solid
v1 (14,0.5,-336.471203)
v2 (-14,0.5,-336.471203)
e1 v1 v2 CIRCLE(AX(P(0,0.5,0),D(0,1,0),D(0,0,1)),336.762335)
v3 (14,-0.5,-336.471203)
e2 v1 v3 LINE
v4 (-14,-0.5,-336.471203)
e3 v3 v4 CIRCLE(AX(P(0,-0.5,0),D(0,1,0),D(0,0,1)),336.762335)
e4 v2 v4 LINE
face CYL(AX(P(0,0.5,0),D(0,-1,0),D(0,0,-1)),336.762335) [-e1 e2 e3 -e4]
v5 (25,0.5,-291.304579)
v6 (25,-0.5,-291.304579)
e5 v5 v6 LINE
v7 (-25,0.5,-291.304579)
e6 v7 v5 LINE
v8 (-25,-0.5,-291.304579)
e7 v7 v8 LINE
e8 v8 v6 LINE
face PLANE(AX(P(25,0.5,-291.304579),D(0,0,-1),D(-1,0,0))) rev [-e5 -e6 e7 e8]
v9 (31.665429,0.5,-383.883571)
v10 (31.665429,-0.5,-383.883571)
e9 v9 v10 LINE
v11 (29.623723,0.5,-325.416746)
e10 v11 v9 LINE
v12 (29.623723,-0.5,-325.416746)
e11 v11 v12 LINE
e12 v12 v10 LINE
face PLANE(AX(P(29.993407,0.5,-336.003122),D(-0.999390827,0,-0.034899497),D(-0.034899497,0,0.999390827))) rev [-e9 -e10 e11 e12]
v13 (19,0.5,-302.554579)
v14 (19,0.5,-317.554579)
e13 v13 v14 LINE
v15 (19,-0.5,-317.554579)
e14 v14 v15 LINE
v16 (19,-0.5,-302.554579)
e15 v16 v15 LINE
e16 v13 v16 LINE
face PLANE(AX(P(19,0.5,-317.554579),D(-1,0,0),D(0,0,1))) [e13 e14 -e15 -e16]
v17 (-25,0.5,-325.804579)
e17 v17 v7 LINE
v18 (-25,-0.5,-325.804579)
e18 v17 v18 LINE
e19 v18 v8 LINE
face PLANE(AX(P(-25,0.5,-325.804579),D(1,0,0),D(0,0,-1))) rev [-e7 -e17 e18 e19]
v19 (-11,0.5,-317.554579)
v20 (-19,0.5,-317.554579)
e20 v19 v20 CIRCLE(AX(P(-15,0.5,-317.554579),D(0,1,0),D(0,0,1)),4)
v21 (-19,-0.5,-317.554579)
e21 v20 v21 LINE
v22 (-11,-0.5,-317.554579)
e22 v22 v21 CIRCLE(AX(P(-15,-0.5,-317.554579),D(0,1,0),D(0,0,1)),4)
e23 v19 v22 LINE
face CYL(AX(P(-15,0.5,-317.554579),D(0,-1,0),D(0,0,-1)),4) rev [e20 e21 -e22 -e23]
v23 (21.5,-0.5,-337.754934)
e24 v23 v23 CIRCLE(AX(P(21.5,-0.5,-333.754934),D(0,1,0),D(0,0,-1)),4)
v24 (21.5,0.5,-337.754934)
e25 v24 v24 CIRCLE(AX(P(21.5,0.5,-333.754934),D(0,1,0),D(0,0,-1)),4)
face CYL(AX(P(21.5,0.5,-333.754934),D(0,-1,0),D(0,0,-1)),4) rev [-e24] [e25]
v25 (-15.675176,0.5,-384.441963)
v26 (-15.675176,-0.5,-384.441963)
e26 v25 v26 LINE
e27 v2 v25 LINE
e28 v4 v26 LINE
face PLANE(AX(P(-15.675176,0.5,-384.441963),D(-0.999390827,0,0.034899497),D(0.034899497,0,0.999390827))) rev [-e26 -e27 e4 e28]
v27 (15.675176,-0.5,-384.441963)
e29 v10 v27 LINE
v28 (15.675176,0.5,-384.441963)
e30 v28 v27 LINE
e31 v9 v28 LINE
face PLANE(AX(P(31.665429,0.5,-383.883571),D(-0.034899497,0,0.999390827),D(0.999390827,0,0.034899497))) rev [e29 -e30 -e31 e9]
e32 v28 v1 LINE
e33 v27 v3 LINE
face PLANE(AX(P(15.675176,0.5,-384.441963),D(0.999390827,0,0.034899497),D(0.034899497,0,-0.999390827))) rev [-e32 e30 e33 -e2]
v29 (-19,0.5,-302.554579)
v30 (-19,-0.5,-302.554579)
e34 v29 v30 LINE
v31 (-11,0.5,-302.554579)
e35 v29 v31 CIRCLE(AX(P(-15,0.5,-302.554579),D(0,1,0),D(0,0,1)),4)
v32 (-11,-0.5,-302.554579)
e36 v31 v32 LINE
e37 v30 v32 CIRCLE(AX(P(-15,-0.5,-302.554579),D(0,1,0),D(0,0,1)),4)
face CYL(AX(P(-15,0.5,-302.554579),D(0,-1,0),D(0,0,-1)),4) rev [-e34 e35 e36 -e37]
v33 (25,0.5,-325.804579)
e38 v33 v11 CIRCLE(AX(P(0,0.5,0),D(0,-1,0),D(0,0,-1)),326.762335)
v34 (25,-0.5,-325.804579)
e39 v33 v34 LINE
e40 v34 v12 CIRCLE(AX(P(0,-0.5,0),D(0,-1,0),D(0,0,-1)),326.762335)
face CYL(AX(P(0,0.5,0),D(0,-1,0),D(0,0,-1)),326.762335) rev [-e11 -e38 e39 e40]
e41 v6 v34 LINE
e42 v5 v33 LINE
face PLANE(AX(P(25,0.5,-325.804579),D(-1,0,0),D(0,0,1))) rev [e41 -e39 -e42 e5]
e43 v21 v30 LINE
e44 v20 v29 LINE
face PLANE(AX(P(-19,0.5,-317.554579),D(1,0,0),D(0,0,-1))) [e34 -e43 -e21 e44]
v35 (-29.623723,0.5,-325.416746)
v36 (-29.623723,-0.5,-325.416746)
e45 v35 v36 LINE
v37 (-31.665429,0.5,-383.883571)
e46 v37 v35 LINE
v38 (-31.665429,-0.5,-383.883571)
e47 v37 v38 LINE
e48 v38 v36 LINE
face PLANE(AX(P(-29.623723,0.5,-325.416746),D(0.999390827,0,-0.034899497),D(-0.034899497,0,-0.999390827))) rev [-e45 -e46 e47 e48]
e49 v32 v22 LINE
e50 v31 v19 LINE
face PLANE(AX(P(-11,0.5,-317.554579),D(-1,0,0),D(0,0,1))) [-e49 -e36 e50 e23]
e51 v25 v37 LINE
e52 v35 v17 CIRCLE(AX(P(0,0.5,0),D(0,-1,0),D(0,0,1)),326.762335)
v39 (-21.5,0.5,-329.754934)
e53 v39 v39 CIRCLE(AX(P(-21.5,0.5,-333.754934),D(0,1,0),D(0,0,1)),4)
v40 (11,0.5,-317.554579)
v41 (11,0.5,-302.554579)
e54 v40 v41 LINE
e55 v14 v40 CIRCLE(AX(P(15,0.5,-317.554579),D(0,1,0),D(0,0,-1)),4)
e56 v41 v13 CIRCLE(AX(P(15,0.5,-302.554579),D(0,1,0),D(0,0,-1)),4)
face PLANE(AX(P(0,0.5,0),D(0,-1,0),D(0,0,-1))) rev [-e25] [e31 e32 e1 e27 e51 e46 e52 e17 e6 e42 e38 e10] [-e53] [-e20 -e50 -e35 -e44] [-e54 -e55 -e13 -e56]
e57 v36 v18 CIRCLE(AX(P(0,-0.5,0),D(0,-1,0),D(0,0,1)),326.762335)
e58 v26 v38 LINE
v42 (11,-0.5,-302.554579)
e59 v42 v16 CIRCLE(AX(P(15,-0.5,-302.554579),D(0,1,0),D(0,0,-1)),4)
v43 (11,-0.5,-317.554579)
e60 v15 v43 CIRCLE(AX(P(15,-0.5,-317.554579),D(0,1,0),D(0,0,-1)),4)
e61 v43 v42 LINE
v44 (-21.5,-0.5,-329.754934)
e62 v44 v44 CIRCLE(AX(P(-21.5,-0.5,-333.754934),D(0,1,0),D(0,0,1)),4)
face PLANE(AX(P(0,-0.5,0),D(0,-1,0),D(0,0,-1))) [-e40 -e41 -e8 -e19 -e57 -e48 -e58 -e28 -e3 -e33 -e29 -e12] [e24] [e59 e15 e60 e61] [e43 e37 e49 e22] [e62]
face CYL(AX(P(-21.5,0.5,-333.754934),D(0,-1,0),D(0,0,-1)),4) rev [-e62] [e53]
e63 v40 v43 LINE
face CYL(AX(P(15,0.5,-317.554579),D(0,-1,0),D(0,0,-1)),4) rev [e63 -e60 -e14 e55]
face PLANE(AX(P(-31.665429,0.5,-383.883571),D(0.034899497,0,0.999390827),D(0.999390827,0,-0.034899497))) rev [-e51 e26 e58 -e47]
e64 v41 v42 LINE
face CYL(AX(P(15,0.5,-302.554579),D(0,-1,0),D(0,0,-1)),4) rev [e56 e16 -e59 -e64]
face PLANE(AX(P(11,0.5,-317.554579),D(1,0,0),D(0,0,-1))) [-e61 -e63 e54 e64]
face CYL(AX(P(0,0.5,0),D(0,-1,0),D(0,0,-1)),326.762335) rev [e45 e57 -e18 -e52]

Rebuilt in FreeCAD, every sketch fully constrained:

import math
import FreeCAD as App
import Part
import Sketcher
from FreeCAD import Vector
Q = App.Units.Quantity

doc = App.newDocument("Part")
body = doc.addObject("PartDesign::Body", "Body")

# Sketch on XZ plane
sketch1 = body.newObject("Sketcher::SketchObject", "Sketch")
sketch1.AttachmentSupport = (doc.getObject("XZ_Plane"), [""])
sketch1.MapMode = "FlatFace"
sketch1.addGeometry(Part.LineSegment(Vector(25, -291.3, 0), Vector(25, -325.8, 0)), False)
sketch1.addGeometry(Part.ArcOfCircle(Part.Circle(Vector(0, 0, 0), Vector(0, 0, 1), 326.8), math.radians(-85.61), math.radians(-84.8)), False)
sketch1.addGeometry(Part.LineSegment(Vector(29.6, -325.4, 0), Vector(30, -336, 0)), False)
sketch1.addGeometry(Part.LineSegment(Vector(30, -336, 0), Vector(31.7, -383.9, 0)), False)
sketch1.addGeometry(Part.LineSegment(Vector(31.7, -383.9, 0), Vector(15.7, -384.4, 0)), False)
sketch1.addGeometry(Part.LineSegment(Vector(15.7, -384.4, 0), Vector(14, -336.5, 0)), False)
sketch1.addGeometry(Part.ArcOfCircle(Part.Circle(Vector(0, 0, 0), Vector(0, 0, 1), 336.8), math.radians(-92.38), math.radians(-87.62)), False)
sketch1.addGeometry(Part.LineSegment(Vector(-14, -336.5, 0), Vector(-15.7, -384.4, 0)), False)
sketch1.addGeometry(Part.LineSegment(Vector(-15.7, -384.4, 0), Vector(-31.7, -383.9, 0)), False)
sketch1.addGeometry(Part.LineSegment(Vector(-31.7, -383.9, 0), Vector(-30, -336, 0)), False)
sketch1.addGeometry(Part.LineSegment(Vector(-30, -336, 0), Vector(-29.6, -325.4, 0)), False)
sketch1.addGeometry(Part.ArcOfCircle(Part.Circle(Vector(0, 0, 0), Vector(0, 0, 1), 326.8), math.radians(-95.2), math.radians(-94.39)), False)
sketch1.addGeometry(Part.LineSegment(Vector(-25, -325.8, 0), Vector(-25, -291.3, 0)), False)
sketch1.addGeometry(Part.LineSegment(Vector(-25, -291.3, 0), Vector(25, -291.3, 0)), False)
sketch1.addGeometry(Part.LineSegment(Vector(19, -317.6, 0), Vector(19, -302.6, 0)), False)
sketch1.addGeometry(Part.ArcOfCircle(Part.Circle(Vector(15, -302.6, 0), Vector(0, 0, 1), 4), math.radians(0), math.radians(180)), False)
sketch1.addGeometry(Part.LineSegment(Vector(11, -302.6, 0), Vector(11, -317.6, 0)), False)
sketch1.addGeometry(Part.ArcOfCircle(Part.Circle(Vector(15, -317.6, 0), Vector(0, 0, 1), 4), math.radians(180), math.radians(360)), False)
sketch1.addGeometry(Part.ArcOfCircle(Part.Circle(Vector(-15, -317.6, 0), Vector(0, 0, 1), 4), math.radians(180), math.radians(360)), False)
sketch1.addGeometry(Part.LineSegment(Vector(-11, -317.6, 0), Vector(-11, -302.6, 0)), False)
sketch1.addGeometry(Part.ArcOfCircle(Part.Circle(Vector(-15, -302.6, 0), Vector(0, 0, 1), 4), math.radians(0), math.radians(180)), False)
sketch1.addGeometry(Part.LineSegment(Vector(-19, -302.6, 0), Vector(-19, -317.6, 0)), False)
sketch1.addGeometry(Part.Circle(Vector(21.5, -333.8, 0), Vector(0, 0, 1), 4), False)
sketch1.addGeometry(Part.Circle(Vector(-21.5, -333.8, 0), Vector(0, 0, 1), 4), False)
sketch1.addConstraint(Sketcher.Constraint("Coincident", 0, 2, 1, 1))
sketch1.addConstraint(Sketcher.Constraint("Coincident", 1, 2, 2, 1))
sketch1.addConstraint(Sketcher.Constraint("Coincident", 2, 2, 3, 1))
sketch1.addConstraint(Sketcher.Constraint("Coincident", 3, 2, 4, 1))
sketch1.addConstraint(Sketcher.Constraint("Coincident", 4, 2, 5, 1))
sketch1.addConstraint(Sketcher.Constraint("Coincident", 5, 2, 6, 2))
sketch1.addConstraint(Sketcher.Constraint("Coincident", 6, 1, 7, 1))
sketch1.addConstraint(Sketcher.Constraint("Coincident", 7, 2, 8, 1))
sketch1.addConstraint(Sketcher.Constraint("Coincident", 8, 2, 9, 1))
sketch1.addConstraint(Sketcher.Constraint("Coincident", 9, 2, 10, 1))
sketch1.addConstraint(Sketcher.Constraint("Coincident", 10, 2, 11, 1))
sketch1.addConstraint(Sketcher.Constraint("Coincident", 11, 2, 12, 1))
sketch1.addConstraint(Sketcher.Constraint("Coincident", 12, 2, 13, 1))
sketch1.addConstraint(Sketcher.Constraint("Coincident", 13, 2, 0, 1))
sketch1.addConstraint(Sketcher.Constraint("Tangent", 14, 2, 15, 1))
sketch1.addConstraint(Sketcher.Constraint("Tangent", 15, 2, 16, 1))
sketch1.addConstraint(Sketcher.Constraint("Tangent", 16, 2, 17, 1))
sketch1.addConstraint(Sketcher.Constraint("Tangent", 17, 2, 14, 1))
sketch1.addConstraint(Sketcher.Constraint("Tangent", 18, 2, 19, 1))
sketch1.addConstraint(Sketcher.Constraint("Tangent", 19, 2, 20, 1))
sketch1.addConstraint(Sketcher.Constraint("Tangent", 20, 2, 21, 1))
sketch1.addConstraint(Sketcher.Constraint("Tangent", 21, 2, 18, 1))
sketch1.addConstraint(Sketcher.Constraint("Vertical", 0))
sketch1.addConstraint(Sketcher.Constraint("Vertical", 12))
sketch1.addConstraint(Sketcher.Constraint("Horizontal", 13))
sketch1.addConstraint(Sketcher.Constraint("Vertical", 14))
sketch1.addConstraint(Sketcher.Constraint("Vertical", 16))
sketch1.addConstraint(Sketcher.Constraint("Vertical", 19))
sketch1.addConstraint(Sketcher.Constraint("Vertical", 21))
sketch1.addConstraint(Sketcher.Constraint("Coincident", 1, 3, -1, 1))
sketch1.addConstraint(Sketcher.Constraint("Coincident", 6, 3, -1, 1))
sketch1.addConstraint(Sketcher.Constraint("Coincident", 11, 3, -1, 1))
sketch1.addConstraint(Sketcher.Constraint("Equal", 1, 11))
sketch1.addConstraint(Sketcher.Constraint("Equal", 17, 18))
sketch1.addConstraint(Sketcher.Constraint("Equal", 20, 22))
sketch1.addConstraint(Sketcher.Constraint("Equal", 22, 23))
sketch1.addConstraint(Sketcher.Constraint("Symmetric", 17, 3, 18, 3, -2))
sketch1.addConstraint(Sketcher.Constraint("Symmetric", 22, 3, 23, 3, -2))
sketch1.addConstraint(Sketcher.Constraint("Symmetric", 4, 2, 7, 2, -2))
sketch1.addConstraint(Sketcher.Constraint("Symmetric", 3, 2, 8, 2, -2))
sketch1.addConstraint(Sketcher.Constraint("Symmetric", 2, 2, 9, 2, -2))
sketch1.addConstraint(Sketcher.Constraint("Parallel", 2, 3))
sketch1.addConstraint(Sketcher.Constraint("Perpendicular", 3, 4))
sketch1.addConstraint(Sketcher.Constraint("Perpendicular", 4, 5))
sketch1.addConstraint(Sketcher.Constraint("Perpendicular", 7, 8))
sketch1.addConstraint(Sketcher.Constraint("Parallel", 9, 10))
sketch1.addConstraint(Sketcher.Constraint("Horizontal", 15, 3, 20, 3))
sketch1.addConstraint(Sketcher.Constraint("Horizontal", 0, 2, 11, 2))
sketch1.addConstraint(Sketcher.Constraint("Diameter", 22, 8.0))
sketch1.addConstraint(Sketcher.Constraint("DistanceX", 13, 1, 13, 2, 50.0))
sketch1.addConstraint(Sketcher.Constraint("DistanceY", 14, 1, 14, 2, 15.0))
sketch1.addConstraint(Sketcher.Constraint("Angle", 2, Q("-88 deg")))
sketch1.addConstraint(Sketcher.Constraint("Distance", 4, 16.0))
sketch1.addConstraint(Sketcher.Constraint("Distance", 5, 48.0))
sketch1.addConstraint(Sketcher.Constraint("DistanceY", 0, 2, 0, 1, 34.5))
sketch1.addConstraint(Sketcher.Constraint("DistanceX", -1, 1, 15, 3, 15.0))
sketch1.addConstraint(Sketcher.Constraint("DistanceX", -1, 1, 5, 2, 14.0))
sketch1.addConstraint(Sketcher.Constraint("DistanceX", 23, 3, 22, 3, 43.0))
sketch1.addConstraint(Sketcher.Constraint("DistanceY", 0, 2, 17, 3, 8.25))
sketch1.addConstraint(Sketcher.Constraint("Radius", 1, 326.762334))
sketch1.addConstraint(Sketcher.Constraint("Radius", 6, 336.762336))
sketch1.addConstraint(Sketcher.Constraint("Distance", 2, 10.592828))
sketch1.addConstraint(Sketcher.Constraint("DistanceY", 22, 3, 1, 2, 8.338188))
pad1 = body.newObject("PartDesign::Pad", "Pad")
pad1.Profile = sketch1
pad1.Length = 1
pad1.Midplane = True

doc.recompute()
